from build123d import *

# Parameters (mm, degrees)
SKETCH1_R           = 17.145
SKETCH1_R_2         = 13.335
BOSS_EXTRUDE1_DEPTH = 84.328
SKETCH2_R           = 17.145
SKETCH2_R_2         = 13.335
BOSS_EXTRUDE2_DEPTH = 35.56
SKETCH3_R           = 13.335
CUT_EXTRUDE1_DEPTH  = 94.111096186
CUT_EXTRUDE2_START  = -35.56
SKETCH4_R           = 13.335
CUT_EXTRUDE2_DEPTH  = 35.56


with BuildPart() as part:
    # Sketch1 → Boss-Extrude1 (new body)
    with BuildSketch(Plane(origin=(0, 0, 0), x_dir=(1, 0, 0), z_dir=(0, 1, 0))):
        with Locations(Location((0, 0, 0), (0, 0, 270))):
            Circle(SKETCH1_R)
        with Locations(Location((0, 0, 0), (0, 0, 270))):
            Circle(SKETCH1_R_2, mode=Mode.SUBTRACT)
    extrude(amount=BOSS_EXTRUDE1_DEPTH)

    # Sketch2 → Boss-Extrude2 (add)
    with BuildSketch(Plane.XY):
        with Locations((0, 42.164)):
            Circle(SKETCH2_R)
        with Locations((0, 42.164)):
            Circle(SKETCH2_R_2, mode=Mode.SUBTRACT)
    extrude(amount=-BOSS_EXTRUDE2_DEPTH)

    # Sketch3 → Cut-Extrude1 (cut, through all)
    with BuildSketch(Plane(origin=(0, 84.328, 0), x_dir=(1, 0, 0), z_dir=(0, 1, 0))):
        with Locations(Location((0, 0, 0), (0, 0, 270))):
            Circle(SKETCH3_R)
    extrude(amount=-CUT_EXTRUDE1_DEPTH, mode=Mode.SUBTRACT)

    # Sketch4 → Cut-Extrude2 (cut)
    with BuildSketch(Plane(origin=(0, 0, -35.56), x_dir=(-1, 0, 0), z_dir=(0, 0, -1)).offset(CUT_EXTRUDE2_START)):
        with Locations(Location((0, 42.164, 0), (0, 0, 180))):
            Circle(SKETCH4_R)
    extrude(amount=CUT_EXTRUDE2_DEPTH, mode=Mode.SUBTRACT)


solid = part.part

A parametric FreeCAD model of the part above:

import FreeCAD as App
import Part
import Sketcher
from FreeCAD import Vector
Q = App.Units.Quantity

doc = App.newDocument("Part")
body = doc.addObject("PartDesign::Body", "Body")

# Sketch on XZ plane
sketch1 = body.newObject("Sketcher::SketchObject", "Sketch")
sketch1.AttachmentSupport = (doc.getObject("XZ_Plane"), [""])
sketch1.MapMode = "FlatFace"
sketch1.addGeometry(Part.Circle(Vector(0, 0, 0), Vector(0, 0, 1), 17), False)
sketch1.addGeometry(Part.Circle(Vector(0, 0, 0), Vector(0, 0, 1), 13), False)
sketch1.addConstraint(Sketcher.Constraint("Coincident", 0, 3, -1, 1))
sketch1.addConstraint(Sketcher.Constraint("Coincident", 1, 3, -1, 1))
sketch1.addConstraint(Sketcher.Constraint("Diameter", 0, Q("1.35 in")))
sketch1.addConstraint(Sketcher.Constraint("Diameter", 1, Q("1.05 in")))
pad1 = body.newObject("PartDesign::Pad", "Pad")
pad1.Profile = sketch1
pad1.Length = Q("3.32 in")
pad1.Reversed = True

# Sketch on XY plane
sketch2 = body.newObject("Sketcher::SketchObject", "Sketch001")
sketch2.AttachmentSupport = (doc.getObject("XY_Plane"), [""])
sketch2.MapMode = "FlatFace"
sketch2.addGeometry(Part.Circle(Vector(0, 42, 0), Vector(0, 0, 1), 17), False)
sketch2.addGeometry(Part.Circle(Vector(0, 42, 0), Vector(0, 0, 1), 13), False)
sketch2.addConstraint(Sketcher.Constraint("Coincident", 1, 3, 0, 3))
sketch2.addConstraint(Sketcher.Constraint("PointOnObject", 0, 3, -2))
sketch2.addConstraint(Sketcher.Constraint("Diameter", 0, Q("1.35 in")))
sketch2.addConstraint(Sketcher.Constraint("Diameter", 1, Q("1.05 in")))
sketch2.addConstraint(Sketcher.Constraint("DistanceY", -1, 1, 0, 3, Q("1.66 in")))
pad2 = body.newObject("PartDesign::Pad", "Pad001")
pad2.Profile = sketch2
pad2.Length = Q("1.4 in")
pad2.Reversed = True

# Sketch on XZ plane
sketch3 = body.newObject("Sketcher::SketchObject", "Sketch002")
sketch3.AttachmentSupport = (doc.getObject("XZ_Plane"), [""])
sketch3.MapMode = "FlatFace"
sketch3.AttachmentOffset = App.Placement(Vector(0, 0, -3.32 * 25.4), App.Rotation())
sketch3.addGeometry(Part.Circle(Vector(0, 0, 0), Vector(0, 0, 1), 13), False)
sketch3.addConstraint(Sketcher.Constraint("Coincident", 0, 3, -1, 1))
sketch3.addConstraint(Sketcher.Constraint("Diameter", 0, Q("1.05 in")))
pocket1 = body.newObject("PartDesign::Pocket", "Pocket")
pocket1.Profile = sketch3
pocket1.Type = "ThroughAll"
pocket1.Reversed = True

# Sketch on XY plane
sketch4 = body.newObject("Sketcher::SketchObject", "Sketch003")
sketch4.AttachmentSupport = (doc.getObject("XY_Plane"), [""])
sketch4.MapMode = "FlatFace"
sketch4.addGeometry(Part.Circle(Vector(0, 42, 0), Vector(0, 0, 1), 13), False)
sketch4.addConstraint(Sketcher.Constraint("PointOnObject", 0, 3, -2))
sketch4.addConstraint(Sketcher.Constraint("Diameter", 0, Q("1.05 in")))
sketch4.addConstraint(Sketcher.Constraint("DistanceY", -1, 1, 0, 3, Q("1.66 in")))
pocket2 = body.newObject("PartDesign::Pocket", "Pocket001")
pocket2.Profile = sketch4
pocket2.Length = Q("1.4 in")

doc.recompute()
